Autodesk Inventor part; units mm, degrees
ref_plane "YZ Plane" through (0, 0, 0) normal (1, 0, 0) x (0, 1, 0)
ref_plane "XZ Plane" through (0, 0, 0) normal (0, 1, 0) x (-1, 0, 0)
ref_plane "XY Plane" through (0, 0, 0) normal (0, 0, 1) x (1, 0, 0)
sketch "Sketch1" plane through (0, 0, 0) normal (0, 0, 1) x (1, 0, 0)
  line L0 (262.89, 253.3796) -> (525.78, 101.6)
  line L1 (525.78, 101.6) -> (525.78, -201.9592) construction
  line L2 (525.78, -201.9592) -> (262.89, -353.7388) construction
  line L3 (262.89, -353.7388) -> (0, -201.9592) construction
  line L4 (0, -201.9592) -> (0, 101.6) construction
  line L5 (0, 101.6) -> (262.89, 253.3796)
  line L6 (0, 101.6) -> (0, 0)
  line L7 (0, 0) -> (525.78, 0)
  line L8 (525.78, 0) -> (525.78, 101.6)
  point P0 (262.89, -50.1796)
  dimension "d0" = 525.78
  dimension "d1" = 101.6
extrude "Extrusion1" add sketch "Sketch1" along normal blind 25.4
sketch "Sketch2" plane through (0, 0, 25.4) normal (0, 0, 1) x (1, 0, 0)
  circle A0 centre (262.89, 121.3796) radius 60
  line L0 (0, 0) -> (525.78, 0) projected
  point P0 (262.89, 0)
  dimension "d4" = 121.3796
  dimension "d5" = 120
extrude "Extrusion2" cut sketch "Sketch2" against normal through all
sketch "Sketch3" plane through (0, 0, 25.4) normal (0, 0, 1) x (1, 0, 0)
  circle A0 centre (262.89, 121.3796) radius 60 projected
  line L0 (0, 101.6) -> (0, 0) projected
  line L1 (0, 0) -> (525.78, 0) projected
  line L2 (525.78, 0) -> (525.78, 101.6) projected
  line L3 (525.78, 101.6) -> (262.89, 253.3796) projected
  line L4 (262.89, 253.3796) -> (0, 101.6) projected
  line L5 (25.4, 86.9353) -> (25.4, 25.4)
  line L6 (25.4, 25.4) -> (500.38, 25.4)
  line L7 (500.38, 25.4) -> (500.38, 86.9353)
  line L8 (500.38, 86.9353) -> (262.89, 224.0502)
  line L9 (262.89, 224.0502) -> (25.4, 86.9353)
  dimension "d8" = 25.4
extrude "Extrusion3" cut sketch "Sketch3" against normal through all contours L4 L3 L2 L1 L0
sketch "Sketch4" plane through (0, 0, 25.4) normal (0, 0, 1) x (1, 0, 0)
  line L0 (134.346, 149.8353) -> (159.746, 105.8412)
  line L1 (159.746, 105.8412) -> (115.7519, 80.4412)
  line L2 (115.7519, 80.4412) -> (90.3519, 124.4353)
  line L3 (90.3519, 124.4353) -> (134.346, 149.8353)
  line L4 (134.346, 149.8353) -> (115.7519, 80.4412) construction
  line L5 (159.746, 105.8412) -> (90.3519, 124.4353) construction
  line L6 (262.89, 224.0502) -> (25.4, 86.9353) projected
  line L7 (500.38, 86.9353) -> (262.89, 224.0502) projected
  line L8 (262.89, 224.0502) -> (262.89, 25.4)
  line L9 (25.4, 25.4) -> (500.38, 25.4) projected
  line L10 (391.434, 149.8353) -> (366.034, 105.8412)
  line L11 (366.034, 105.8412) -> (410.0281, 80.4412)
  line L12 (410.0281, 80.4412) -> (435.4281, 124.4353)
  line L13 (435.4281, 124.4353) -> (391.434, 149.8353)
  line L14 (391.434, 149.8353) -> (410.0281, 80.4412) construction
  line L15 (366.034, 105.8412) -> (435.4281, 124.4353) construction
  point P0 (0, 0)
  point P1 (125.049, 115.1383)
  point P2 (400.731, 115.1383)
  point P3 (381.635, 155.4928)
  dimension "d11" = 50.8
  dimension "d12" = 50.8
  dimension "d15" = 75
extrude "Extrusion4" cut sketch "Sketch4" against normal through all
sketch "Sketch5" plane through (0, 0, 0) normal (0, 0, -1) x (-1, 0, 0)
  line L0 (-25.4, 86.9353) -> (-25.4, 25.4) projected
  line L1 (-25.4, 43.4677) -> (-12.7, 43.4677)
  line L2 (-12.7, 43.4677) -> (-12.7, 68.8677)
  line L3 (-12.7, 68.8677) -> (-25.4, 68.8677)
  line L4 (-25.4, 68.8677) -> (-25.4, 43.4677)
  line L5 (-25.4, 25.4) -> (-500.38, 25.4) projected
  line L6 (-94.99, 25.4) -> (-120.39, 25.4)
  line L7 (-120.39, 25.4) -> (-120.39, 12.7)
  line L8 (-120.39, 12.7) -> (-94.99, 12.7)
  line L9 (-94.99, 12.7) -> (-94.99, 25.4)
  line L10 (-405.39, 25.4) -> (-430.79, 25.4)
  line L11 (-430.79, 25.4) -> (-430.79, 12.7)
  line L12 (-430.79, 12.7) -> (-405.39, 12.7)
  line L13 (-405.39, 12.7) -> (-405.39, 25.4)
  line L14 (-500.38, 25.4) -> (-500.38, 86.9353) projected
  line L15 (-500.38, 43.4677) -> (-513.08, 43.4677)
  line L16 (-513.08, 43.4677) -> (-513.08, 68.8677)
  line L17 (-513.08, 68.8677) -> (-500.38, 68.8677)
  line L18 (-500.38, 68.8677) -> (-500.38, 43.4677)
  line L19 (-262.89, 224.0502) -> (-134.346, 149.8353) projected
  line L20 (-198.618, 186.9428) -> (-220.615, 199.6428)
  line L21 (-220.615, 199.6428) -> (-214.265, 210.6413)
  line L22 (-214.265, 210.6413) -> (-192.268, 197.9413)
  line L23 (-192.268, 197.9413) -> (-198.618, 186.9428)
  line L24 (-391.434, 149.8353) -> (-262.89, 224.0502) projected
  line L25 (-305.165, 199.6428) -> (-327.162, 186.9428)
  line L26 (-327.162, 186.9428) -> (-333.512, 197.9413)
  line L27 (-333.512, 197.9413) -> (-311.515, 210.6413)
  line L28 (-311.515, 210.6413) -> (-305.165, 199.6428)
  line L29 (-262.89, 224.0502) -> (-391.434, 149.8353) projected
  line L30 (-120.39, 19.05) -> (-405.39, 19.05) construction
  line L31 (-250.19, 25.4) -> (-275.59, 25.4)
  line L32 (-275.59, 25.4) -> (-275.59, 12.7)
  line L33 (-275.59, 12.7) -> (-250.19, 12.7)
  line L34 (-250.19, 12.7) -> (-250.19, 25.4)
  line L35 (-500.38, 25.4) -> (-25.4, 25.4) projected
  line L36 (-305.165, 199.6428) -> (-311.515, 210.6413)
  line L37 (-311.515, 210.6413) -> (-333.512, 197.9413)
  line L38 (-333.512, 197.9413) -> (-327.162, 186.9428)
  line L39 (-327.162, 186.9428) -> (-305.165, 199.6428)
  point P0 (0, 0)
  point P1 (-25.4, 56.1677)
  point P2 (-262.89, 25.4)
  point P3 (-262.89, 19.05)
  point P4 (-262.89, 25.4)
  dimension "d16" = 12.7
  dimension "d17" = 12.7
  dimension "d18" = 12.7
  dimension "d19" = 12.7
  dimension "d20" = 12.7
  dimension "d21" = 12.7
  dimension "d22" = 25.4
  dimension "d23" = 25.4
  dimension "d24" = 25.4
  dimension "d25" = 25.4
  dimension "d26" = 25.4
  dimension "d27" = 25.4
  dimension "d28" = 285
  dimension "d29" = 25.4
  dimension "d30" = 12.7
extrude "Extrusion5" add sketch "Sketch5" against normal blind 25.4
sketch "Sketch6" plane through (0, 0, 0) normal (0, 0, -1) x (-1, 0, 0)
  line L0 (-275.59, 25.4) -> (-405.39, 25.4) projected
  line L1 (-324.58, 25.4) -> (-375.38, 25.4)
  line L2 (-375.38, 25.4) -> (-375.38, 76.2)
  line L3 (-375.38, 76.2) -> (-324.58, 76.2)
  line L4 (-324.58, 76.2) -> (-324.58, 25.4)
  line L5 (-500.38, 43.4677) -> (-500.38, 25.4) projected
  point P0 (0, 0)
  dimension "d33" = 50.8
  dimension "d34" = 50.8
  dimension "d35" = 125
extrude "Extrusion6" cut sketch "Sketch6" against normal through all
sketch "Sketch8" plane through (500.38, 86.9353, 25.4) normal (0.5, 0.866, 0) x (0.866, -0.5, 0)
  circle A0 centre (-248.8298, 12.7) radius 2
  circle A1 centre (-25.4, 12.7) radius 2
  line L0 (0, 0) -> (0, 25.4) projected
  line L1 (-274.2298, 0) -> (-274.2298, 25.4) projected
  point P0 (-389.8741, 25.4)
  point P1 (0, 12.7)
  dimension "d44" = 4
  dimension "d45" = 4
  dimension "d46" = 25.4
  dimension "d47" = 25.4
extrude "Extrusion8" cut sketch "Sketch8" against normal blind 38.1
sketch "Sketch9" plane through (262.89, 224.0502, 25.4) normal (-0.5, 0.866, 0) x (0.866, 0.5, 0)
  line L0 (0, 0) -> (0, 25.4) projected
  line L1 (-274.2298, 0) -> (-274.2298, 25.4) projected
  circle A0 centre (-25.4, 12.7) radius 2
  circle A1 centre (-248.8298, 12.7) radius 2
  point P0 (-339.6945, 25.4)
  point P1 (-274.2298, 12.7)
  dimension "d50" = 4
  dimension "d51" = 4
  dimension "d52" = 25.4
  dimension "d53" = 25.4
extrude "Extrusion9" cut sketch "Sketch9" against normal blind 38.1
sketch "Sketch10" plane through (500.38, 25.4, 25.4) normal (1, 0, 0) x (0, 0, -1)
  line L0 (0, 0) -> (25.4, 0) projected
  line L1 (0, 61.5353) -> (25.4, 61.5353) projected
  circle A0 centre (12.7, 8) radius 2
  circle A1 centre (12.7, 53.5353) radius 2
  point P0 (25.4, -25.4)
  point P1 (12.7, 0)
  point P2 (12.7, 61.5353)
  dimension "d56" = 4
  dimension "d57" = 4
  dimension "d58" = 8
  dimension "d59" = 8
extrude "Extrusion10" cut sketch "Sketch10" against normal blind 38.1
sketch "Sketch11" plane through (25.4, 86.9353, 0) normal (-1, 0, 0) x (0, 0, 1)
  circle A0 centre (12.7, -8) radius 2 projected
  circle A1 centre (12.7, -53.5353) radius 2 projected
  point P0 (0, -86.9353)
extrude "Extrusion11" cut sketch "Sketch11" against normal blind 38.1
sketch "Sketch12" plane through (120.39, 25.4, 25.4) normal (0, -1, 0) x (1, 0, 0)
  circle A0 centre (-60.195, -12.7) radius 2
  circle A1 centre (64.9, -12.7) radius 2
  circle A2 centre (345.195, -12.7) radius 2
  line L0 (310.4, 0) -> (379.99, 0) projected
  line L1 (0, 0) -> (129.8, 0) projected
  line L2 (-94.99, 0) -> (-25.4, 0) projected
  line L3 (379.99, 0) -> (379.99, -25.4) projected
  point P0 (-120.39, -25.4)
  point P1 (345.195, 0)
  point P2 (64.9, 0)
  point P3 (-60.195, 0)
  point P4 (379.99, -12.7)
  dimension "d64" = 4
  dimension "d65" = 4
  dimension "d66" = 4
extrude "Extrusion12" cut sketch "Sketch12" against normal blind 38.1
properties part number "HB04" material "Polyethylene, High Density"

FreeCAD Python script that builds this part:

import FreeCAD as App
import Part
import Sketcher

V = App.Vector
Q = App.Units.Quantity


def add_polygon(sketch, points):
    """Adds a closed chain of lines whose ends are joined by coincident constraints."""
    first, n = sketch.GeometryCount, len(points)
    for a, b in zip(points, points[1:] + points[:1]):
        sketch.addGeometry(Part.LineSegment(App.Vector(*a, 0), App.Vector(*b, 0)), False)
    for i in range(n):
        sketch.addConstraint(Sketcher.Constraint("Coincident", first + i, 2, first + (i + 1) % n, 1))

doc = App.newDocument("Part")
body = doc.addObject("PartDesign::Body", "Body")

# Sketch on XY plane
sketch1 = body.newObject("Sketcher::SketchObject", "Sketch")
sketch1.AttachmentSupport = (doc.getObject("XY_Plane"), [""])
sketch1.MapMode = "FlatFace"
add_polygon(sketch1, [(526, 102), (263, 253), (0, 102), (0, 0), (526, 0)])  # lines 0-4
sketch1.addConstraint(Sketcher.Constraint("Vertical", 2))
sketch1.addConstraint(Sketcher.Constraint("Horizontal", 3))
sketch1.addConstraint(Sketcher.Constraint("Vertical", 4))
sketch1.addConstraint(Sketcher.Constraint("Coincident", 2, 2, -1, 1))
sketch1.addConstraint(Sketcher.Constraint("Horizontal", 1, 2, 4, 2))
sketch1.addConstraint(Sketcher.Constraint("Equal", 0, 1))
sketch1.addConstraint(Sketcher.Constraint("DistanceY", 2, 2, 2, 1, Q("4 in")))
sketch1.addConstraint(Sketcher.Constraint("DistanceX", 3, 1, 3, 2, Q("20.7 in")))
sketch1.addConstraint(Sketcher.Constraint("Angle", 0, Q("150 deg")))
pad1 = body.newObject("PartDesign::Pad", "Pad")
pad1.Profile = sketch1
pad1.Length = Q("1 in")

# Sketch on XY plane
sketch2 = body.newObject("Sketcher::SketchObject", "Sketch001")
sketch2.AttachmentSupport = (doc.getObject("XY_Plane"), [""])
sketch2.MapMode = "FlatFace"
sketch2.AttachmentOffset = App.Placement(V(0, 0, 1 * 25.4), App.Rotation())
sketch2.addGeometry(Part.Circle(V(263, 121, 0), V(0, 0, 1), 60), False)
sketch2.addConstraint(Sketcher.Constraint("Diameter", 0, Q("4.7244 in")))
sketch2.addConstraint(Sketcher.Constraint("DistanceX", -1, 1, 0, 3, Q("10.35 in")))
sketch2.addConstraint(Sketcher.Constraint("DistanceY", -1, 1, 0, 3, 121.3796))
pocket1 = body.newObject("PartDesign::Pocket", "Pocket")
pocket1.Profile = sketch2
pocket1.Type = "ThroughAll"

# Sketch on XY plane
sketch3 = body.newObject("Sketcher::SketchObject", "Sketch002")
sketch3.AttachmentSupport = (doc.getObject("XY_Plane"), [""])
sketch3.MapMode = "FlatFace"
sketch3.AttachmentOffset = App.Placement(V(0, 0, 1 * 25.4), App.Rotation())
add_polygon(sketch3, [(263, 253), (0, 102), (0, 0), (526, 0), (526, 102)])  # lines 0-4
add_polygon(sketch3, [(25, 25), (25, 87), (263, 224), (500, 87), (500, 25)])  # lines 5-9
sketch3.addConstraint(Sketcher.Constraint("Vertical", 1))
sketch3.addConstraint(Sketcher.Constraint("Horizontal", 2))
sketch3.addConstraint(Sketcher.Constraint("Vertical", 3))
sketch3.addConstraint(Sketcher.Constraint("Vertical", 5))
sketch3.addConstraint(Sketcher.Constraint("Vertical", 8))
sketch3.addConstraint(Sketcher.Constraint("Horizontal", 9))
sketch3.addConstraint(Sketcher.Constraint("Coincident", 1, 2, -1, 1))
sketch3.addConstraint(Sketcher.Constraint("Parallel", 0, 6))
sketch3.addConstraint(Sketcher.Constraint("Parallel", 4, 7))
sketch3.addConstraint(Sketcher.Constraint("Horizontal", 0, 2, 3, 2))
sketch3.addConstraint(Sketcher.Constraint("Horizontal", 5, 2, 7, 2))
sketch3.addConstraint(Sketcher.Constraint("Vertical", 4, 2, 6, 2))
sketch3.addConstraint(Sketcher.Constraint("Equal", 0, 4))
sketch3.addConstraint(Sketcher.Constraint("DistanceX", -1, 1, 5, 2, Q("1 in")))
sketch3.addConstraint(Sketcher.Constraint("DistanceY", -1, 1, 8, 2, Q("1 in")))
sketch3.addConstraint(Sketcher.Constraint("DistanceY", 1, 2, 1, 1, Q("4 in")))
sketch3.addConstraint(Sketcher.Constraint("DistanceX", 2, 1, 2, 2, Q("20.7 in")))
sketch3.addConstraint(Sketcher.Constraint("Angle", 0, Q("-150 deg")))
sketch3.addConstraint(Sketcher.Constraint("DistanceY", 5, 1, 5, 2, 61.5353))
pocket2 = body.newObject("PartDesign::Pocket", "Pocket001")
pocket2.Profile = sketch3
pocket2.Type = "ThroughAll"

# Sketch on XY plane
sketch4 = body.newObject("Sketcher::SketchObject", "Sketch003")
sketch4.AttachmentSupport = (doc.getObject("XY_Plane"), [""])
sketch4.MapMode = "FlatFace"
sketch4.AttachmentOffset = App.Placement(V(0, 0, 1 * 25.4), App.Rotation())
add_polygon(sketch4, [(160, 106), (134, 150), (90, 124), (116, 80)])  # lines 0-3
add_polygon(sketch4, [(435, 124), (391, 150), (366, 106), (410, 80)])  # lines 4-7
sketch4.addConstraint(Sketcher.Constraint("Perpendicular", 0, 1))
sketch4.addConstraint(Sketcher.Constraint("Perpendicular", 1, 2))
sketch4.addConstraint(Sketcher.Constraint("Perpendicular", 2, 3))
sketch4.addConstraint(Sketcher.Constraint("Perpendicular", 4, 5))
sketch4.addConstraint(Sketcher.Constraint("Perpendicular", 5, 6))
sketch4.addConstraint(Sketcher.Constraint("Perpendicular", 6, 7))
sketch4.addConstraint(Sketcher.Constraint("Horizontal", 0, 2, 4, 2))
sketch4.addConstraint(Sketcher.Constraint("Horizontal", 3, 2, 5, 2))
sketch4.addConstraint(Sketcher.Constraint("Horizontal", 2, 2, 6, 2))
sketch4.addConstraint(Sketcher.Constraint("Equal", 0, 1))
sketch4.addConstraint(Sketcher.Constraint("Equal", 3, 4))
sketch4.addConstraint(Sketcher.Constraint("Distance", 0, Q("2 in")))
sketch4.addConstraint(Sketcher.Constraint("Angle", 0, Q("120 deg")))
sketch4.addConstraint(Sketcher.Constraint("DistanceX", -1, 1, 0, 2, 134.346))
sketch4.addConstraint(Sketcher.Constraint("DistanceY", -1, 1, 0, 2, 149.8353))
sketch4.addConstraint(Sketcher.Constraint("DistanceX", -1, 1, 4, 2, 391.434))
pocket3 = body.newObject("PartDesign::Pocket", "Pocket002")
pocket3.Profile = sketch4
pocket3.Type = "ThroughAll"

# Sketch on XY plane
sketch5 = body.newObject("Sketcher::SketchObject", "Sketch004")
sketch5.AttachmentSupport = (doc.getObject("XY_Plane"), [""])
sketch5.MapMode = "FlatFace"
add_polygon(sketch5, [(13, 69), (25, 69), (25, 43), (13, 43)])  # lines 0-3
add_polygon(sketch5, [(513, 43), (500, 43), (500, 69), (513, 69)])  # lines 4-7
add_polygon(sketch5, [(405, 13), (405, 25), (431, 25), (431, 13)])  # lines 8-11
add_polygon(sketch5, [(250, 13), (250, 25), (276, 25), (276, 13)])  # lines 12-15
add_polygon(sketch5, [(95, 13), (95, 25), (120, 25), (120, 13)])  # lines 16-19
add_polygon(sketch5, [(214, 211), (221, 200), (199, 187), (192, 198)])  # lines 20-23
add_polygon(sketch5, [(327, 187), (305, 200), (312, 211), (334, 198)])  # lines 24-27
sketch5.addConstraint(Sketcher.Constraint("Horizontal", 0))
sketch5.addConstraint(Sketcher.Constraint("Vertical", 1))
sketch5.addConstraint(Sketcher.Constraint("Horizontal", 2))
sketch5.addConstraint(Sketcher.Constraint("Vertical", 3))
sketch5.addConstraint(Sketcher.Constraint("Horizontal", 4))
sketch5.addConstraint(Sketcher.Constraint("Vertical", 5))
sketch5.addConstraint(Sketcher.Constraint("Horizontal", 6))
sketch5.addConstraint(Sketcher.Constraint("Vertical", 7))
sketch5.addConstraint(Sketcher.Constraint("Vertical", 8))
sketch5.addConstraint(Sketcher.Constraint("Horizontal", 9))
sketch5.addConstraint(Sketcher.Constraint("Vertical", 10))
sketch5.addConstraint(Sketcher.Constraint("Horizontal", 11))
sketch5.addConstraint(Sketcher.Constraint("Vertical", 12))
sketch5.addConstraint(Sketcher.Constraint("Horizontal", 13))
sketch5.addConstraint(Sketcher.Constraint("Vertical", 14))
sketch5.addConstraint(Sketcher.Constraint("Horizontal", 15))
sketch5.addConstraint(Sketcher.Constraint("Vertical", 16))
sketch5.addConstraint(Sketcher.Constraint("Horizontal", 17))
sketch5.addConstraint(Sketcher.Constraint("Vertical", 18))
sketch5.addConstraint(Sketcher.Constraint("Horizontal", 19))
sketch5.addConstraint(Sketcher.Constraint("Perpendicular", 20, 21))
sketch5.addConstraint(Sketcher.Constraint("Perpendicular", 21, 22))
sketch5.addConstraint(Sketcher.Constraint("Perpendicular", 22, 23))
sketch5.addConstraint(Sketcher.Constraint("Perpendicular", 24, 25))
sketch5.addConstraint(Sketcher.Constraint("Perpendicular", 25, 26))
sketch5.addConstraint(Sketcher.Constraint("Perpendicular", 26, 27))
sketch5.addConstraint(Sketcher.Constraint("Horizontal", 2, 2, 4, 2))
sketch5.addConstraint(Sketcher.Constraint("Horizontal", 3, 2, 5, 2))
sketch5.addConstraint(Sketcher.Constraint("Horizontal", 9, 2, 12, 2))
sketch5.addConstraint(Sketcher.Constraint("Horizontal", 11, 2, 14, 2))
sketch5.addConstraint(Sketcher.Constraint("Horizontal", 13, 2, 16, 2))
sketch5.addConstraint(Sketcher.Constraint("Horizontal", 15, 2, 18, 2))
sketch5.addConstraint(Sketcher.Constraint("Horizontal", 20, 2, 24, 2))
sketch5.addConstraint(Sketcher.Constraint("Horizontal", 23, 2, 25, 2))
sketch5.addConstraint(Sketcher.Constraint("Horizontal", 22, 2, 26, 2))
sketch5.addConstraint(Sketcher.Constraint("Equal", 2, 4))
sketch5.addConstraint(Sketcher.Constraint("Equal", 11, 13))
sketch5.addConstraint(Sketcher.Constraint("Equal", 15, 17))
sketch5.addConstraint(Sketcher.Constraint("Equal", 19, 1))
sketch5.addConstraint(Sketcher.Constraint("Equal", 6, 8))
sketch5.addConstraint(Sketcher.Constraint("Equal", 23, 24))
sketch5.addConstraint(Sketcher.Constraint("DistanceX", 9, 1, 9, 2, Q("1 in")))
sketch5.addConstraint(Sketcher.Constraint("Distance", 21, Q("1 in")))
sketch5.addConstraint(Sketcher.Constraint("DistanceX", 0, 1, 0, 2, Q("0.5 in")))
sketch5.addConstraint(Sketcher.Constraint("DistanceX", -1, 1, 0, 2, Q("1 in")))
sketch5.addConstraint(Sketcher.Constraint("DistanceY", -1, 1, 8, 2, Q("1 in")))
sketch5.addConstraint(Sketcher.Constraint("Distance", 20, Q("0.5 in")))
sketch5.addConstraint(Sketcher.Constraint("DistanceY", 21, 2, 20, 2, Q("0.5 in")))
sketch5.addConstraint(Sketcher.Constraint("DistanceX", -1, 1, 4, 2, Q("19.7 in")))
sketch5.addConstraint(Sketcher.Constraint("DistanceX", -1, 1, 12, 2, Q("9.85 in")))
sketch5.addConstraint(Sketcher.Constraint("DistanceX", -1, 1, 21, 2, Q("7.8196 in")))
sketch5.addConstraint(Sketcher.Constraint("DistanceX", -1, 1, 26, 2, Q("13.1304 in")))
sketch5.addConstraint(Sketcher.Constraint("DistanceY", -1, 1, 0, 2, 68.8677))
sketch5.addConstraint(Sketcher.Constraint("DistanceX", -1, 1, 8, 2, 405.39))
sketch5.addConstraint(Sketcher.Constraint("DistanceX", -1, 1, 16, 2, 94.99))
sketch5.addConstraint(Sketcher.Constraint("DistanceY", -1, 1, 20, 2, 199.6428))
pad2 = body.newObject("PartDesign::Pad", "Pad001")
pad2.Profile = sketch5
pad2.Length = Q("1 in")

# Sketch on XY plane
sketch6 = body.newObject("Sketcher::SketchObject", "Sketch005")
sketch6.AttachmentSupport = (doc.getObject("XY_Plane"), [""])
sketch6.MapMode = "FlatFace"
add_polygon(sketch6, [(375, 25), (325, 25), (325, 76), (375, 76)])  # lines 0-3
sketch6.addConstraint(Sketcher.Constraint("Horizontal", 0))
sketch6.addConstraint(Sketcher.Constraint("Vertical", 1))
sketch6.addConstraint(Sketcher.Constraint("Horizontal", 2))
sketch6.addConstraint(Sketcher.Constraint("Vertical", 3))
sketch6.addConstraint(Sketcher.Constraint("Equal", 2, 1))
sketch6.addConstraint(Sketcher.Constraint("DistanceX", 0, 2, 0, 1, Q("2 in")))
sketch6.addConstraint(Sketcher.Constraint("DistanceY", -1, 1, 0, 2, Q("1 in")))
sketch6.addConstraint(Sketcher.Constraint("DistanceX", -1, 1, 0, 2, 324.58))
pocket4 = body.newObject("PartDesign::Pocket", "Pocket003")
pocket4.Profile = sketch6
pocket4.Type = "ThroughAll"
pocket4.Reversed = True

# Sketch on an angled plane
sketch7 = body.newObject("Sketcher::SketchObject", "Sketch006")
sketch7.Placement = App.Placement(V(500.38, 86.9353, 25.4), App.Rotation(V(0.866025404, -0.5, 0), V(0, 0, -1), V(0.5, 0.866025404, 0), "ZXY"))
sketch7.addGeometry(Part.Circle(V(-248.8, 12.7, 0), V(0, 0, 1), 2), False)
sketch7.addGeometry(Part.Circle(V(-25.4, 12.7, 0), V(0, 0, 1), 2), False)
sketch7.addConstraint(Sketcher.Constraint("Equal", 0, 1))
sketch7.addConstraint(Sketcher.Constraint("Horizontal", 0, 3, 1, 3))
sketch7.addConstraint(Sketcher.Constraint("DistanceX", 1, 3, -1, 1, Q("1 in")))
sketch7.addConstraint(Sketcher.Constraint("Diameter", 0, 4.0))
sketch7.addConstraint(Sketcher.Constraint("DistanceY", -1, 1, 0, 3, Q("0.5 in")))
sketch7.addConstraint(Sketcher.Constraint("DistanceX", 0, 3, -1, 1, 248.8298))
pocket5 = body.newObject("PartDesign::Pocket", "Pocket004")
pocket5.Profile = sketch7
pocket5.Length = Q("1.5 in")

# Sketch on an angled plane
sketch8 = body.newObject("Sketcher::SketchObject", "Sketch007")
sketch8.Placement = App.Placement(V(262.89, 224.0502, 25.4), App.Rotation(V(0.866025404, 0.5, 0), V(0, 0, -1), V(-0.5, 0.866025404, 0), "ZXY"))
sketch8.addGeometry(Part.Circle(V(-25.4, 12.7, 0), V(0, 0, 1), 2), False)
sketch8.addGeometry(Part.Circle(V(-248.8, 12.7, 0), V(0, 0, 1), 2), False)
sketch8.addConstraint(Sketcher.Constraint("Equal", 0, 1))
sketch8.addConstraint(Sketcher.Constraint("Horizontal", 0, 3, 1, 3))
sketch8.addConstraint(Sketcher.Constraint("DistanceX", 0, 3, -1, 1, Q("1 in")))
sketch8.addConstraint(Sketcher.Constraint("Diameter", 0, 4.0))
sketch8.addConstraint(Sketcher.Constraint("DistanceY", -1, 1, 0, 3, Q("0.5 in")))
sketch8.addConstraint(Sketcher.Constraint("DistanceX", 1, 3, -1, 1, 248.8298))
pocket6 = body.newObject("PartDesign::Pocket", "Pocket005")
pocket6.Profile = sketch8
pocket6.Length = Q("1.5 in")

# Sketch on YZ plane
sketch9 = body.newObject("Sketcher::SketchObject", "Sketch008")
sketch9.AttachmentSupport = (doc.getObject("YZ_Plane"), [""])
sketch9.MapMode = "FlatFace"
sketch9.AttachmentOffset = App.Placement(V(0, 0, 19.7 * 25.4), App.Rotation())
sketch9.addGeometry(Part.Circle(V(33.4, 12.7, 0), V(0, 0, 1), 2), False)
sketch9.addGeometry(Part.Circle(V(78.9, 12.7, 0), V(0, 0, 1), 2), False)
sketch9.addConstraint(Sketcher.Constraint("Equal", 0, 1))
sketch9.addConstraint(Sketcher.Constraint("Horizontal", 0, 3, 1, 3))
sketch9.addConstraint(Sketcher.Constraint("Diameter", 0, 4.0))
sketch9.addConstraint(Sketcher.Constraint("DistanceY", -1, 1, 0, 3, Q("0.5 in")))
sketch9.addConstraint(Sketcher.Constraint("DistanceX", -1, 1, 1, 3, Q("3.1077 in")))
sketch9.addConstraint(Sketcher.Constraint("DistanceX", -1, 1, 0, 3, 33.4))
pocket7 = body.newObject("PartDesign::Pocket", "Pocket006")
pocket7.Profile = sketch9
pocket7.Length = Q("1.5 in")

# Sketch on YZ plane
sketch10 = body.newObject("Sketcher::SketchObject", "Sketch009")
sketch10.AttachmentSupport = (doc.getObject("YZ_Plane"), [""])
sketch10.MapMode = "FlatFace"
sketch10.AttachmentOffset = App.Placement(V(0, 0, 1 * 25.4), App.Rotation())
sketch10.addGeometry(Part.Circle(V(78.9, 12.7, 0), V(0, 0, 1), 2), False)
sketch10.addGeometry(Part.Circle(V(33.4, 12.7, 0), V(0, 0, 1), 2), False)
sketch10.addConstraint(Sketcher.Constraint("Equal", 0, 1))
sketch10.addConstraint(Sketcher.Constraint("Horizontal", 0, 3, 1, 3))
sketch10.addConstraint(Sketcher.Constraint("DistanceY", -1, 1, 0, 3, Q("0.5 in")))
sketch10.addConstraint(Sketcher.Constraint("Diameter", 0, 4.0))
sketch10.addConstraint(Sketcher.Constraint("DistanceX", -1, 1, 0, 3, Q("3.1077 in")))
sketch10.addConstraint(Sketcher.Constraint("DistanceX", -1, 1, 1, 3, 33.4))
pocket8 = body.newObject("PartDesign::Pocket", "Pocket007")
pocket8.Profile = sketch10
pocket8.Length = Q("1.5 in")
pocket8.Reversed = True

# Sketch on XZ plane
sketch11 = body.newObject("Sketcher::SketchObject", "Sketch010")
sketch11.AttachmentSupport = (doc.getObject("XZ_Plane"), [""])
sketch11.MapMode = "FlatFace"
sketch11.AttachmentOffset = App.Placement(V(0, 0, -1 * 25.4), App.Rotation())
sketch11.addGeometry(Part.Circle(V(60.2, 12.7, 0), V(0, 0, 1), 2), False)
sketch11.addGeometry(Part.Circle(V(185.3, 12.7, 0), V(0, 0, 1), 2), False)
sketch11.addGeometry(Part.Circle(V(465.6, 12.7, 0), V(0, 0, 1), 2), False)
sketch11.addConstraint(Sketcher.Constraint("Equal", 0, 1))
sketch11.addConstraint(Sketcher.Constraint("Equal", 1, 2))
sketch11.addConstraint(Sketcher.Constraint("Horizontal", 0, 3, 1, 3))
sketch11.addConstraint(Sketcher.Constraint("Horizontal", 1, 3, 2, 3))
sketch11.addConstraint(Sketcher.Constraint("Diameter", 0, 4.0))
sketch11.addConstraint(Sketcher.Constraint("DistanceY", -1, 1, 0, 3, Q("0.5 in")))
sketch11.addConstraint(Sketcher.Constraint("DistanceX", 0, 3, 1, 3, Q("4.925 in")))
sketch11.addConstraint(Sketcher.Constraint("DistanceX", -1, 1, 0, 3, 60.195))
sketch11.addConstraint(Sketcher.Constraint("DistanceX", -1, 1, 2, 3, 465.585))
pocket9 = body.newObject("PartDesign::Pocket", "Pocket008")
pocket9.Profile = sketch11
pocket9.Length = Q("1.5 in")

doc.recompute()
